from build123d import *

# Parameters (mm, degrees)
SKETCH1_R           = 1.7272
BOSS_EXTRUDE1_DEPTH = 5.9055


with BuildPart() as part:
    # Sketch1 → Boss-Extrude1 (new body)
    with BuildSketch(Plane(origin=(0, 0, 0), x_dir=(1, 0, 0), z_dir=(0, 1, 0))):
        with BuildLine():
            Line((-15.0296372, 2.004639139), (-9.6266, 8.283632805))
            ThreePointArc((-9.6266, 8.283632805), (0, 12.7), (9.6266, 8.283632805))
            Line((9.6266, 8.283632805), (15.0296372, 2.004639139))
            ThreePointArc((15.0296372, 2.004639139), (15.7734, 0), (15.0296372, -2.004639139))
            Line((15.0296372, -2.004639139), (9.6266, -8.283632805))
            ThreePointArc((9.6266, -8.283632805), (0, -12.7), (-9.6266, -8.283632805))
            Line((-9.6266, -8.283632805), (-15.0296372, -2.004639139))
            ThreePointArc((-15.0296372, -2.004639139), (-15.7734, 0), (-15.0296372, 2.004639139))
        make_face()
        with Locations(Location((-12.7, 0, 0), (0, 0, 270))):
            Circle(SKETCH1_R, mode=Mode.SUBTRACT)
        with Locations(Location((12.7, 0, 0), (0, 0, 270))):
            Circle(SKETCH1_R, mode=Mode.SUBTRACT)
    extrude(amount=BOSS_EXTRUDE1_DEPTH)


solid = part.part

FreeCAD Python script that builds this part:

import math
import FreeCAD as App
import Part
import Sketcher
Q = App.Units.Quantity

doc = App.newDocument("Part")
body = doc.addObject("PartDesign::Body", "Body")

sketch1 = body.newObject("Sketcher::SketchObject", "Sketch")
sketch1.AttachmentSupport = (doc.getObject("XZ_Plane"), [""])
sketch1.MapMode = "FlatFace"
sketch1.addGeometry([
    Part.LineSegment(App.Vector(-9.6266, -8.283633, 0), App.Vector(-15.029637, -2.004639, 0)),
    Part.ArcOfCircle(Part.Circle(App.Vector(-12.7, 0, 0), App.Vector(0, 0, 1), 3.0734), math.radians(139.288198), math.radians(220.711802)),
    Part.LineSegment(App.Vector(-15.029637, 2.004639, 0), App.Vector(-9.6266, 8.283633, 0)),
    Part.ArcOfCircle(Part.Circle(App.Vector(0, 0, 0), App.Vector(0, 0, 1), 12.7), math.radians(40.711802), math.radians(139.288198)),
    Part.LineSegment(App.Vector(9.6266, 8.283633, 0), App.Vector(15.029637, 2.004639, 0)),
    Part.ArcOfCircle(Part.Circle(App.Vector(12.7, 0, 0), App.Vector(0, 0, 1), 3.0734), math.radians(-40.711802), math.radians(40.711802)),
    Part.LineSegment(App.Vector(15.029637, -2.004639, 0), App.Vector(9.6266, -8.283633, 0)),
    Part.ArcOfCircle(Part.Circle(App.Vector(0, 0, 0), App.Vector(0, 0, 1), 12.7), math.radians(-139.288198), math.radians(-40.711802)),
    Part.Circle(App.Vector(12.7, 0, 0), App.Vector(0, 0, 1), 1.7272),
    Part.Circle(App.Vector(-12.7, 0, 0), App.Vector(0, 0, 1), 1.7272),
], False)
sketch1.addConstraint([
    Sketcher.Constraint("Tangent", 0, 2, 1, 2),
    Sketcher.Constraint("Tangent", 1, 1, 2, 1),
    Sketcher.Constraint("Tangent", 2, 2, 3, 2),
    Sketcher.Constraint("Tangent", 3, 1, 4, 1),
    Sketcher.Constraint("Tangent", 4, 2, 5, 2),
    Sketcher.Constraint("Tangent", 5, 1, 6, 1),
    Sketcher.Constraint("Tangent", 6, 2, 7, 2),
    Sketcher.Constraint("Tangent", 7, 1, 0, 1),
    Sketcher.Constraint("Coincident", 3, 3, -1, 1),
    Sketcher.Constraint("Coincident", 7, 3, -1, 1),
    Sketcher.Constraint("Coincident", 8, 3, 5, 3),
    Sketcher.Constraint("Coincident", 9, 3, 1, 3),
    Sketcher.Constraint("Equal", 1, 5),
    Sketcher.Constraint("Equal", 3, 7),
    Sketcher.Constraint("Equal", 8, 9),
    Sketcher.Constraint("Symmetric", 1, 3, 5, 3, -1, 1),
    Sketcher.Constraint("PointOnObject", 1, 3, -1),
    Sketcher.Constraint("Radius", 3, Q("0.5 in")),
    Sketcher.Constraint("Diameter", 8, Q("0.136 in")),
    Sketcher.Constraint("Radius", 1, Q("0.121 in")),
    Sketcher.Constraint("DistanceX", 1, 3, 5, 3, Q("1 in")),
])
pad1 = body.newObject("PartDesign::Pad", "Pad")
pad1.Profile = sketch1
pad1.Length = Q("0.2325 in")
pad1.Reversed = True

doc.recompute()
